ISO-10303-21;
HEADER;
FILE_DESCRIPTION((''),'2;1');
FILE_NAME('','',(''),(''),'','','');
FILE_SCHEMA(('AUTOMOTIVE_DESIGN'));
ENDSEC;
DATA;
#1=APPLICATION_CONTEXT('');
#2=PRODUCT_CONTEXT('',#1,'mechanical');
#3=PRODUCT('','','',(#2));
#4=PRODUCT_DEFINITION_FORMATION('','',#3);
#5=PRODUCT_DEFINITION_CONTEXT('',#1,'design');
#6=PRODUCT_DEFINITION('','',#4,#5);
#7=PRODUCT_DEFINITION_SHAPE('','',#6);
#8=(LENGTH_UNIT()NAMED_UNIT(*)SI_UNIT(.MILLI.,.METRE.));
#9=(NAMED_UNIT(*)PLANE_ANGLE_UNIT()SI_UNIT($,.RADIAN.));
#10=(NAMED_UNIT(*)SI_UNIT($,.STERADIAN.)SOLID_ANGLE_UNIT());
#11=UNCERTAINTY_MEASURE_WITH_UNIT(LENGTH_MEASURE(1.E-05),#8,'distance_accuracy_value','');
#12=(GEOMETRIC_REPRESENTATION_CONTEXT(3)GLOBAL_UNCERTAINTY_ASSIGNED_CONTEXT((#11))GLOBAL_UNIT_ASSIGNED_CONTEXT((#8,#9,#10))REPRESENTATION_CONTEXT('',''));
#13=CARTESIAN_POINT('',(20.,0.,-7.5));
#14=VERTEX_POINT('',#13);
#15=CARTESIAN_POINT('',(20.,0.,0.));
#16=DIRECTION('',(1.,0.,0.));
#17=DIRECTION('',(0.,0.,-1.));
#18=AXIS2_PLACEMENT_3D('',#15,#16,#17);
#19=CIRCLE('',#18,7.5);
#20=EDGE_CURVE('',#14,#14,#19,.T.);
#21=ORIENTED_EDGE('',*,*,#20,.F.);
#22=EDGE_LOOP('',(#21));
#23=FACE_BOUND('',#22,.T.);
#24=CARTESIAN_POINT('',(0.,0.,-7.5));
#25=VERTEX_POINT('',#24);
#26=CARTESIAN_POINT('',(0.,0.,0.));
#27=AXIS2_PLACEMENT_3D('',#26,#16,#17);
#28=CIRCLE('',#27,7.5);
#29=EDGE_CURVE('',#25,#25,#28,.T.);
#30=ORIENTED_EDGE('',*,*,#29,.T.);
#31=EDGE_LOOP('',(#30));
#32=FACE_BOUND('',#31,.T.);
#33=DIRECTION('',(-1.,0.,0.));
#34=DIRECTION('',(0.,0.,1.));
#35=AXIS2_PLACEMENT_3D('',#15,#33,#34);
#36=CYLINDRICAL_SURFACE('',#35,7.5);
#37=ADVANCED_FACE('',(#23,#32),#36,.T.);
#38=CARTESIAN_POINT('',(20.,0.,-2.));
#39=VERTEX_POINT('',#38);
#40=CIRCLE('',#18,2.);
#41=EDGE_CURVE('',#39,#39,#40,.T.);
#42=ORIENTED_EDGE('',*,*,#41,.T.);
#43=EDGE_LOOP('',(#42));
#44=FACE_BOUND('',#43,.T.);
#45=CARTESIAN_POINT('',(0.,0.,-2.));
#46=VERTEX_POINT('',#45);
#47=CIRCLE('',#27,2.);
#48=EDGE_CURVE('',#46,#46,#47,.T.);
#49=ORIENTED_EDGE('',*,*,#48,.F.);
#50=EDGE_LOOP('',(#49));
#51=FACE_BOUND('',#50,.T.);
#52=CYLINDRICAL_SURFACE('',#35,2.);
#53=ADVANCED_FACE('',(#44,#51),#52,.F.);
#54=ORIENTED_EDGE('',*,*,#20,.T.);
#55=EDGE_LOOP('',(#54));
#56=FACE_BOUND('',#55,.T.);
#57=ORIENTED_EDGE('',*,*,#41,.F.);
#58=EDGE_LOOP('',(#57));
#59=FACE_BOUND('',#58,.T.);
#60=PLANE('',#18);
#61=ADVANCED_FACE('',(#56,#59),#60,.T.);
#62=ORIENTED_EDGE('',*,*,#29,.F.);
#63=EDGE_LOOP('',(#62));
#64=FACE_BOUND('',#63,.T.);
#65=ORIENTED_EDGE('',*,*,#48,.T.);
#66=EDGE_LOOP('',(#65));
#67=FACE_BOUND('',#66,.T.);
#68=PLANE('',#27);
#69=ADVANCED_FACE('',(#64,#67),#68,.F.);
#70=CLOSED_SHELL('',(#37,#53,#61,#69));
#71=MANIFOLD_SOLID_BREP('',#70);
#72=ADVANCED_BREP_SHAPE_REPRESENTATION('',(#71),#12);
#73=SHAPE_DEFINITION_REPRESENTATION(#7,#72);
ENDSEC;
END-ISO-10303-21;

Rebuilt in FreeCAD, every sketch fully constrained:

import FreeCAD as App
import Part
import Sketcher
from FreeCAD import Vector
Q = App.Units.Quantity

doc = App.newDocument("Part")
body = doc.addObject("PartDesign::Body", "Body")

# Sketch on YZ plane
sketch1 = body.newObject("Sketcher::SketchObject", "Sketch")
sketch1.AttachmentSupport = (doc.getObject("YZ_Plane"), [""])
sketch1.MapMode = "FlatFace"
sketch1.addGeometry(Part.Circle(Vector(0, 0, 0), Vector(0, 0, 1), 7.5), False)
sketch1.addGeometry(Part.Circle(Vector(0, 0, 0), Vector(0, 0, 1), 2), False)
sketch1.addConstraint(Sketcher.Constraint("Coincident", 0, 3, -1, 1))
sketch1.addConstraint(Sketcher.Constraint("Coincident", 1, 3, -1, 1))
sketch1.addConstraint(Sketcher.Constraint("Diameter", 0, Q("15 mm")))
sketch1.addConstraint(Sketcher.Constraint("Diameter", 1, Q("4 mm")))
pad1 = body.newObject("PartDesign::Pad", "Pad")
pad1.Profile = sketch1
pad1.Length = 20

doc.recompute()
